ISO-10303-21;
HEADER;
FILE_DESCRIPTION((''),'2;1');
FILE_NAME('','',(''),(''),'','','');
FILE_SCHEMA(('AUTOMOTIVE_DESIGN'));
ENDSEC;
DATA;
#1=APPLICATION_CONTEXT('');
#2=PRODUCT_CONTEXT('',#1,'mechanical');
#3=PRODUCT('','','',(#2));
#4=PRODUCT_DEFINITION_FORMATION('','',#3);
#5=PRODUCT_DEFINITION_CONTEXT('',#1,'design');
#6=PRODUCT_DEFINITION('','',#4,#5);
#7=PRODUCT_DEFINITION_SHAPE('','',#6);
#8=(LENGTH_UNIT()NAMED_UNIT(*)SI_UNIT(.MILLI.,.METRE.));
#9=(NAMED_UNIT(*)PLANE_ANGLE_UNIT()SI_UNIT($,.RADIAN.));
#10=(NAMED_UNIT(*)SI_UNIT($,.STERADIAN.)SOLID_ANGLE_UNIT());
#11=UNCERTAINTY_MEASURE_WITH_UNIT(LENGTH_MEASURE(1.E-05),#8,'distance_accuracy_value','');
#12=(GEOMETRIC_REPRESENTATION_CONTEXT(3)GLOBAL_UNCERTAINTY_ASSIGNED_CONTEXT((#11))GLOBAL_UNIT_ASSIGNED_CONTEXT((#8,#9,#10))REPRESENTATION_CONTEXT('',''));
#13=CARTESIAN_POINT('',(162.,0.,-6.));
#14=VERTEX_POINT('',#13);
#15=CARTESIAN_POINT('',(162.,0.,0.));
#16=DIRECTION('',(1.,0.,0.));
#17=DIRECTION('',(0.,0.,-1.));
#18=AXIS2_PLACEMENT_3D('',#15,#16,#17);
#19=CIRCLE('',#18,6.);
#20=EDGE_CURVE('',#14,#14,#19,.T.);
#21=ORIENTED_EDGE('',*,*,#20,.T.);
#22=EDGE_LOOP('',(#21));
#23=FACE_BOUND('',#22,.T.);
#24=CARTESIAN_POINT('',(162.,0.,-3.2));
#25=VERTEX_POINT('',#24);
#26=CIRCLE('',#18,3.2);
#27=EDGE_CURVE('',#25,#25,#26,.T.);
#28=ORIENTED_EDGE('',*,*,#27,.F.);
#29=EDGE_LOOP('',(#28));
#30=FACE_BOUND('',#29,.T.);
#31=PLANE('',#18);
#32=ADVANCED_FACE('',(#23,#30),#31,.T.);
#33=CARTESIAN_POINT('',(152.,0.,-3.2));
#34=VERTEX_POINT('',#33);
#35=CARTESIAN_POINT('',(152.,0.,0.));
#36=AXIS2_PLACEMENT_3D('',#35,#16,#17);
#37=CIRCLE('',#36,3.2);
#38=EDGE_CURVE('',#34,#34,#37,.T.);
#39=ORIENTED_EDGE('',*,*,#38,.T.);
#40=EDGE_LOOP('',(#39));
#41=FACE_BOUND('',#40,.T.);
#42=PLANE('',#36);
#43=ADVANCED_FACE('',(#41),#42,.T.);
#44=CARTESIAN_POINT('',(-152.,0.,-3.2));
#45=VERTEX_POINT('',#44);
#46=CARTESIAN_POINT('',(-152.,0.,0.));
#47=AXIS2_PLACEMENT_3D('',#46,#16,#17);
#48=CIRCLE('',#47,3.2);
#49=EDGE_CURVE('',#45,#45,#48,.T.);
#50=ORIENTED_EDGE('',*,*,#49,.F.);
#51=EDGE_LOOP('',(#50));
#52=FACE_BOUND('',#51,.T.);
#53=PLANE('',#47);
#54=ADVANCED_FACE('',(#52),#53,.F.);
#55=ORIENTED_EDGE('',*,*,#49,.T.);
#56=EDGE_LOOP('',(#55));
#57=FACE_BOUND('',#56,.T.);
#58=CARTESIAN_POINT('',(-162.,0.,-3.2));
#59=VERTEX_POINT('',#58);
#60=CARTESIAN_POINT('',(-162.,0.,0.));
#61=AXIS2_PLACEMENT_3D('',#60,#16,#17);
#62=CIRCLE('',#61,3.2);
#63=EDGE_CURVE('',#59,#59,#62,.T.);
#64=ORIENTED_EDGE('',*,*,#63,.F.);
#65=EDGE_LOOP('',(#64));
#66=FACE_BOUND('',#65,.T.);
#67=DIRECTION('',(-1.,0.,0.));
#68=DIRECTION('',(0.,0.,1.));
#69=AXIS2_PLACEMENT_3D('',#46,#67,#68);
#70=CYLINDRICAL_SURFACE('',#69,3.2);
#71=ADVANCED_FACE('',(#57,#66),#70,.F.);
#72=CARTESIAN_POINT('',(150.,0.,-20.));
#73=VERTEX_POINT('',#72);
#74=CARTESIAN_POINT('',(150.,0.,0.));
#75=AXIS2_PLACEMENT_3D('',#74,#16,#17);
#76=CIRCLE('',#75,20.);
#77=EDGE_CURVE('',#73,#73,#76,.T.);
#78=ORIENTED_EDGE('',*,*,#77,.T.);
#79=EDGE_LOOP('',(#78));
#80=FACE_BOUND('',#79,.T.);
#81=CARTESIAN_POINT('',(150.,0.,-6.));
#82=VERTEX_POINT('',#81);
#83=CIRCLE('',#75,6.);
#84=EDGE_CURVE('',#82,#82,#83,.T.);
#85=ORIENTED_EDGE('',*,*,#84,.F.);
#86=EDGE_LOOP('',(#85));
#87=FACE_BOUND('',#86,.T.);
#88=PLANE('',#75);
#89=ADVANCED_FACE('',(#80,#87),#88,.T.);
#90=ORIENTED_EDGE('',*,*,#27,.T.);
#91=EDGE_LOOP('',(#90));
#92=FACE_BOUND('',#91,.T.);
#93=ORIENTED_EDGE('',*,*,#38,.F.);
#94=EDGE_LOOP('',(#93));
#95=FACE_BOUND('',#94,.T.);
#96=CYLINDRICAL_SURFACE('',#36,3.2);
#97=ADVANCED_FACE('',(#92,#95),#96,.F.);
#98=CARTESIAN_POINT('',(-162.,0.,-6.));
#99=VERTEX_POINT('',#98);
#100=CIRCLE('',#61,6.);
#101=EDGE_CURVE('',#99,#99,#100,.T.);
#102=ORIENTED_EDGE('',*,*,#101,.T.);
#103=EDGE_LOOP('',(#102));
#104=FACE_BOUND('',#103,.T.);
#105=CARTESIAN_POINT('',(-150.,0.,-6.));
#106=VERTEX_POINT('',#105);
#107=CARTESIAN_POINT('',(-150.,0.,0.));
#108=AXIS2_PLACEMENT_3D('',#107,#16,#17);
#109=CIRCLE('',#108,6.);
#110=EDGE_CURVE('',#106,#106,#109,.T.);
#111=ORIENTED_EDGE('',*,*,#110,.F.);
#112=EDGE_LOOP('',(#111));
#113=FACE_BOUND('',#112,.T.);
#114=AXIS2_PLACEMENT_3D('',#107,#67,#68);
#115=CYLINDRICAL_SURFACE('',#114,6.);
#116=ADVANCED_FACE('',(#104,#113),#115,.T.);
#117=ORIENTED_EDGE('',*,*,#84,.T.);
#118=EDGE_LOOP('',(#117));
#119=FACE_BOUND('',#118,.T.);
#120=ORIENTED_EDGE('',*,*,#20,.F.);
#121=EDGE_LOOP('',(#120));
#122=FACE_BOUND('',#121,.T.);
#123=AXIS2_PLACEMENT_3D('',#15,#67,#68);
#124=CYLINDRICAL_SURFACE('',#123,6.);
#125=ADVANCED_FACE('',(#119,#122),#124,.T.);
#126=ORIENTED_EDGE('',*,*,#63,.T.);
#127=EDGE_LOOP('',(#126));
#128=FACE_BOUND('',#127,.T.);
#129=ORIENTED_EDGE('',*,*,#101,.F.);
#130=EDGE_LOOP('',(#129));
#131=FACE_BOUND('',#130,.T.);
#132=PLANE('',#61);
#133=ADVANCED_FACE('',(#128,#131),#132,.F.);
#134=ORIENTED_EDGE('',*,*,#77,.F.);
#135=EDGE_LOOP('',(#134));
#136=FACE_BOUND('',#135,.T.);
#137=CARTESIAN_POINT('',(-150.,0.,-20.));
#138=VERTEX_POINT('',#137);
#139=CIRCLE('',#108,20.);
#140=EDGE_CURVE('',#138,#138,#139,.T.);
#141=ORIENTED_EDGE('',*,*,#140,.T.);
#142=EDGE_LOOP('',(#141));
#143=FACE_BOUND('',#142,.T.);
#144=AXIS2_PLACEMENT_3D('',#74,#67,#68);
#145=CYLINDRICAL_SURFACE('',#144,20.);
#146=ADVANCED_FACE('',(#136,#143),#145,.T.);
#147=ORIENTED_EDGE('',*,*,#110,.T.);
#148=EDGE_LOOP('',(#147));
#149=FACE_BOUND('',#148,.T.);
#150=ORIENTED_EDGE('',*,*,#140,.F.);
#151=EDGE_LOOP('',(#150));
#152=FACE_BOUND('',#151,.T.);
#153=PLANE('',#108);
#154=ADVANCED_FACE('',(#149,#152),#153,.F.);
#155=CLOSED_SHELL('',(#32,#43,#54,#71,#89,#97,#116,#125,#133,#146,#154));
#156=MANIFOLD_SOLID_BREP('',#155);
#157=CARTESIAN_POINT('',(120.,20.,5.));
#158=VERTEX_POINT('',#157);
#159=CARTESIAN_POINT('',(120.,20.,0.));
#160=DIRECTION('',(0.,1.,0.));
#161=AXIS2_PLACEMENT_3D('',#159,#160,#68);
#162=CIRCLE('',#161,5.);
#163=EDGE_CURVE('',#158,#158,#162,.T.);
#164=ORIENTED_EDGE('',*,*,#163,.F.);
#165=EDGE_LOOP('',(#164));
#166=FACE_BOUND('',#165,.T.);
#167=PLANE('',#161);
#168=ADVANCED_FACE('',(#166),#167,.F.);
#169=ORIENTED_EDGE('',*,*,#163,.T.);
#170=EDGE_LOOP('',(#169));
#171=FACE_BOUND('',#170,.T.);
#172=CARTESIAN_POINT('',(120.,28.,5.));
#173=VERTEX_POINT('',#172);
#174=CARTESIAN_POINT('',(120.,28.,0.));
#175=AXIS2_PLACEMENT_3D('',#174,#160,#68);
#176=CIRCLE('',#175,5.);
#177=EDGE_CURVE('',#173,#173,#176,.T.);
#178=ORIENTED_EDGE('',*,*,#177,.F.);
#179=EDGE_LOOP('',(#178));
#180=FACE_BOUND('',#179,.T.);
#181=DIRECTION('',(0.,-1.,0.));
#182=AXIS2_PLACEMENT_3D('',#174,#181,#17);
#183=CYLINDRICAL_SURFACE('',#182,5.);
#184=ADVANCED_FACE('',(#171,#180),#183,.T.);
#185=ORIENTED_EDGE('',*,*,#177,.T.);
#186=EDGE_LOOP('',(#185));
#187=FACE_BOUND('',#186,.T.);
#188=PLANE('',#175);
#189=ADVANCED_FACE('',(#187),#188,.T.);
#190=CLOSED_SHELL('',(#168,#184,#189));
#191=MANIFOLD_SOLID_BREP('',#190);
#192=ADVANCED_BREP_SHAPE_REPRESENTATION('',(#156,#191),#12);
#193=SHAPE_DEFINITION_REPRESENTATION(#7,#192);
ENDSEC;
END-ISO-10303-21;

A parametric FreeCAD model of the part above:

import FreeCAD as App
import Part
import Sketcher

doc = App.newDocument("Part")
body = doc.addObject("PartDesign::Body", "Body")

# Sketch on YZ plane
sketch1 = body.newObject("Sketcher::SketchObject", "Sketch")
sketch1.AttachmentSupport = (doc.getObject("YZ_Plane"), [""])
sketch1.MapMode = "FlatFace"
sketch1.AttachmentOffset = App.Placement(App.Vector(0, 0, -150), App.Rotation())
sketch1.addGeometry(Part.Circle(App.Vector(0, 0, 0), App.Vector(0, 0, 1), 20), False)
sketch1.addConstraint(Sketcher.Constraint("Coincident", 0, 3, -1, 1))
sketch1.addConstraint(Sketcher.Constraint("Diameter", 0, 40.0))
pad1 = body.newObject("PartDesign::Pad", "Pad")
pad1.Profile = sketch1
pad1.Length = 300

# Sketch on YZ plane
sketch2 = body.newObject("Sketcher::SketchObject", "Sketch001")
sketch2.AttachmentSupport = (doc.getObject("YZ_Plane"), [""])
sketch2.MapMode = "FlatFace"
sketch2.AttachmentOffset = App.Placement(App.Vector(0, 0, -162), App.Rotation())
sketch2.addGeometry(Part.Circle(App.Vector(0, 0, 0), App.Vector(0, 0, 1), 6), False)
sketch2.addConstraint(Sketcher.Constraint("Coincident", 0, 3, -1, 1))
sketch2.addConstraint(Sketcher.Constraint("Diameter", 0, 12.0))
pad2 = body.newObject("PartDesign::Pad", "Pad001")
pad2.Profile = sketch2
pad2.Length = 12

# Sketch on YZ plane
sketch3 = body.newObject("Sketcher::SketchObject", "Sketch002")
sketch3.AttachmentSupport = (doc.getObject("YZ_Plane"), [""])
sketch3.MapMode = "FlatFace"
sketch3.AttachmentOffset = App.Placement(App.Vector(0, 0, -162), App.Rotation())
sketch3.addGeometry(Part.Circle(App.Vector(0, 0, 0), App.Vector(0, 0, 1), 3.2), False)
sketch3.addConstraint(Sketcher.Constraint("Coincident", 0, 3, -1, 1))
sketch3.addConstraint(Sketcher.Constraint("Diameter", 0, 6.4))
pocket1 = body.newObject("PartDesign::Pocket", "Pocket")
pocket1.Profile = sketch3
pocket1.Length = 10
pocket1.Reversed = True

# Sketch on YZ plane
sketch4 = body.newObject("Sketcher::SketchObject", "Sketch003")
sketch4.AttachmentSupport = (doc.getObject("YZ_Plane"), [""])
sketch4.MapMode = "FlatFace"
sketch4.AttachmentOffset = App.Placement(App.Vector(0, 0, 150), App.Rotation())
sketch4.addGeometry(Part.Circle(App.Vector(0, 0, 0), App.Vector(0, 0, 1), 6), False)
sketch4.addConstraint(Sketcher.Constraint("Coincident", 0, 3, -1, 1))
sketch4.addConstraint(Sketcher.Constraint("Diameter", 0, 12.0))
pad3 = body.newObject("PartDesign::Pad", "Pad002")
pad3.Profile = sketch4
pad3.Length = 12

# Sketch on YZ plane
sketch5 = body.newObject("Sketcher::SketchObject", "Sketch004")
sketch5.AttachmentSupport = (doc.getObject("YZ_Plane"), [""])
sketch5.MapMode = "FlatFace"
sketch5.AttachmentOffset = App.Placement(App.Vector(0, 0, 152), App.Rotation())
sketch5.addGeometry(Part.Circle(App.Vector(0, 0, 0), App.Vector(0, 0, 1), 3.2), False)
sketch5.addConstraint(Sketcher.Constraint("Coincident", 0, 3, -1, 1))
sketch5.addConstraint(Sketcher.Constraint("Diameter", 0, 6.4))
pocket2 = body.newObject("PartDesign::Pocket", "Pocket001")
pocket2.Profile = sketch5
pocket2.Length = 10
pocket2.Reversed = True
body2 = doc.addObject("PartDesign::Body", "Body001")

# Sketch on XZ plane
sketch6 = body2.newObject("Sketcher::SketchObject", "Sketch005")
sketch6.AttachmentSupport = (doc.getObject("XZ_Plane001"), [""])
sketch6.MapMode = "FlatFace"
sketch6.AttachmentOffset = App.Placement(App.Vector(0, 0, -20), App.Rotation())
sketch6.addGeometry(Part.Circle(App.Vector(120, 0, 0), App.Vector(0, 0, 1), 5), False)
sketch6.addConstraint(Sketcher.Constraint("PointOnObject", 0, 3, -1))
sketch6.addConstraint(Sketcher.Constraint("Diameter", 0, 10.0))
sketch6.addConstraint(Sketcher.Constraint("DistanceX", -1, 1, 0, 3, 120.0))
pad4 = body2.newObject("PartDesign::Pad", "Pad003")
pad4.Profile = sketch6
pad4.Length = 8
pad4.Reversed = True

doc.recompute()
